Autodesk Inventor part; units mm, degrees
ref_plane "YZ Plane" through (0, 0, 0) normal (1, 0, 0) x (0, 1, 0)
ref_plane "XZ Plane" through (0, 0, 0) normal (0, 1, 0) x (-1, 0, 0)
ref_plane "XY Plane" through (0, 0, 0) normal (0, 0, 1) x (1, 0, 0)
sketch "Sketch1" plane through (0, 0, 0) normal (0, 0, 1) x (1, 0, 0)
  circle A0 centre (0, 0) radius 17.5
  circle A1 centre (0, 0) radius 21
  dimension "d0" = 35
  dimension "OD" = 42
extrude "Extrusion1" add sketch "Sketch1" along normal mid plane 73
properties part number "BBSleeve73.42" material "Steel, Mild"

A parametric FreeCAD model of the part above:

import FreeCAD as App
import Part
import Sketcher
Q = App.Units.Quantity

doc = App.newDocument("Part")
body = doc.addObject("PartDesign::Body", "Body")

sketch1 = body.newObject("Sketcher::SketchObject", "Sketch")
sketch1.AttachmentSupport = (doc.getObject("XY_Plane"), [""])
sketch1.MapMode = "FlatFace"
sketch1.addGeometry([
    Part.Circle(App.Vector(0, 0, 0), App.Vector(0, 0, 1), 21),
    Part.Circle(App.Vector(0, 0, 0), App.Vector(0, 0, 1), 18),
], False)
sketch1.addConstraint([
    Sketcher.Constraint("Coincident", 0, 3, -1, 1),
    Sketcher.Constraint("Coincident", 1, 3, -1, 1),
    Sketcher.Constraint("Diameter", 0, Q("42 mm")),
    Sketcher.Constraint("Diameter", 1, Q("35 mm")),
])
pad1 = body.newObject("PartDesign::Pad", "Pad")
pad1.Profile = sketch1
pad1.Length = 73
pad1.Midplane = True

doc.recompute()
